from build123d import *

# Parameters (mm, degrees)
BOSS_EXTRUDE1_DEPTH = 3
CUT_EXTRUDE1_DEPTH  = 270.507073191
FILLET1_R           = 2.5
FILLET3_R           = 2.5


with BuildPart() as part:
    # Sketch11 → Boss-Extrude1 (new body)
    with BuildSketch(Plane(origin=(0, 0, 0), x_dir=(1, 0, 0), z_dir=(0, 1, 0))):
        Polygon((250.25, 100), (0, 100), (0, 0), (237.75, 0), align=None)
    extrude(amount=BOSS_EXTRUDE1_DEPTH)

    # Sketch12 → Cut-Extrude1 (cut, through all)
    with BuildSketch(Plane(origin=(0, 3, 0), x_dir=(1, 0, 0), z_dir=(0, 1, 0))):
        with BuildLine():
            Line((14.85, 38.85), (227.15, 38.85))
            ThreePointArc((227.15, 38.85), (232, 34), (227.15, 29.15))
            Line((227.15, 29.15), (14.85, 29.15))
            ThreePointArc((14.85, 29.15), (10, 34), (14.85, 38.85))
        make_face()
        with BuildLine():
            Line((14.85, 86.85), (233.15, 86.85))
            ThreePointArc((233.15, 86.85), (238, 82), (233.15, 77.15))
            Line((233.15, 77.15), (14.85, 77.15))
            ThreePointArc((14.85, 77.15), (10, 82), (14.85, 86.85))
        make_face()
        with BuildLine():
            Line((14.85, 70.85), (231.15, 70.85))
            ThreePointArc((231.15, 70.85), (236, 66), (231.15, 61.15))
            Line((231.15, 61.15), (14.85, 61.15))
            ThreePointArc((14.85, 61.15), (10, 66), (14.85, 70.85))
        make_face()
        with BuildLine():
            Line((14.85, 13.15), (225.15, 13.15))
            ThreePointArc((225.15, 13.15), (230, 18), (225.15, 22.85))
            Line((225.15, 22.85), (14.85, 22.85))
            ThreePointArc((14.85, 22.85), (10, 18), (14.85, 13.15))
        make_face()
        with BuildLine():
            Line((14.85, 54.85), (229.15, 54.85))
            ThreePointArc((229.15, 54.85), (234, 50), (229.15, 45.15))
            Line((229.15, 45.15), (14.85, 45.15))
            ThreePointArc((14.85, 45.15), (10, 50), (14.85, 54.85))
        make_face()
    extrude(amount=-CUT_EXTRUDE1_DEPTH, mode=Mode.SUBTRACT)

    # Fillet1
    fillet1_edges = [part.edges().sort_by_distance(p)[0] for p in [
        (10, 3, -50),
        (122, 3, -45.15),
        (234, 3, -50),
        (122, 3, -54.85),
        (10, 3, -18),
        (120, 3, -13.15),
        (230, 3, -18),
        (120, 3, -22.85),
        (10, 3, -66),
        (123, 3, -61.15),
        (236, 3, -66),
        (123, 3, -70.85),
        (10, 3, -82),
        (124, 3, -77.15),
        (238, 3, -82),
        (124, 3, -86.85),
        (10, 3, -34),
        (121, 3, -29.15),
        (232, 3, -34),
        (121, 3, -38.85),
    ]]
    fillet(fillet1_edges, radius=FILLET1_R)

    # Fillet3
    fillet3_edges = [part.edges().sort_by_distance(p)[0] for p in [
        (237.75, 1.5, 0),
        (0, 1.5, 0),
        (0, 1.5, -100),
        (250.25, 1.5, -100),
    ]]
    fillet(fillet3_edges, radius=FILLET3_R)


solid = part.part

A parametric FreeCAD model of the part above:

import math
import FreeCAD as App
import Part
import Sketcher

V = App.Vector


def edges_at(feature, points):
    """Names of the edges that pass closest to the given points."""
    edges = feature.Shape.Edges
    near = lambda p: min(range(len(edges)), key=lambda i: edges[i].distToShape(Part.Vertex(*p))[0])
    return sorted({f"Edge{near(p) + 1}" for p in points})


def add_polygon(sketch, points):
    """Adds a closed chain of lines whose ends are joined by coincident constraints."""
    first, n = sketch.GeometryCount, len(points)
    for a, b in zip(points, points[1:] + points[:1]):
        sketch.addGeometry(Part.LineSegment(App.Vector(*a, 0), App.Vector(*b, 0)), False)
    for i in range(n):
        sketch.addConstraint(Sketcher.Constraint("Coincident", first + i, 2, first + (i + 1) % n, 1))

doc = App.newDocument("Part")
body = doc.addObject("PartDesign::Body", "Body")

# Sketch on XZ plane
sketch1 = body.newObject("Sketcher::SketchObject", "Sketch")
sketch1.AttachmentSupport = (doc.getObject("XZ_Plane"), [""])
sketch1.MapMode = "FlatFace"
add_polygon(sketch1, [(250.25, -100), (0, -100), (0, 0), (237.75, 0)])  # lines 0-3
sketch1.addConstraint([
    Sketcher.Constraint("Horizontal", 0),
    Sketcher.Constraint("Vertical", 1),
    Sketcher.Constraint("Horizontal", 2),
    Sketcher.Constraint("Coincident", 1, 2, -1, 1),
    Sketcher.Constraint("DistanceY", 1, 1, 1, 2, 100.0),
    Sketcher.Constraint("DistanceX", 0, 2, 0, 1, 250.25),
    Sketcher.Constraint("DistanceX", 2, 1, 2, 2, 237.75),
])
pad1 = body.newObject("PartDesign::Pad", "Pad")
pad1.Profile = sketch1
pad1.Length = 3
pad1.Reversed = True

# Sketch on XZ plane
sketch2 = body.newObject("Sketcher::SketchObject", "Sketch001")
sketch2.AttachmentSupport = (doc.getObject("XZ_Plane"), [""])
sketch2.MapMode = "FlatFace"
sketch2.AttachmentOffset = App.Placement(V(0, 0, -3), App.Rotation())
sketch2.addGeometry([
    Part.LineSegment(V(227.15, -38.85, 0), V(14.85, -38.85, 0)),  # 0
    Part.ArcOfCircle(Part.Circle(V(14.85, -34, 0), V(0, 0, 1), 4.85), math.radians(90), math.radians(270)),  # 1
    Part.LineSegment(V(14.85, -29.15, 0), V(227.15, -29.15, 0)),  # 2
    Part.ArcOfCircle(Part.Circle(V(227.15, -34, 0), V(0, 0, 1), 4.85), math.radians(-90), math.radians(90)),  # 3
    Part.LineSegment(V(233.15, -86.85, 0), V(14.85, -86.85, 0)),  # 4
    Part.ArcOfCircle(Part.Circle(V(14.85, -82, 0), V(0, 0, 1), 4.85), math.radians(90), math.radians(270)),  # 5
    Part.LineSegment(V(14.85, -77.15, 0), V(233.15, -77.15, 0)),  # 6
    Part.ArcOfCircle(Part.Circle(V(233.15, -82, 0), V(0, 0, 1), 4.85), math.radians(-90), math.radians(90)),  # 7
    Part.LineSegment(V(231.15, -70.85, 0), V(14.85, -70.85, 0)),  # 8
    Part.ArcOfCircle(Part.Circle(V(14.85, -66, 0), V(0, 0, 1), 4.85), math.radians(90), math.radians(270)),  # 9
    Part.LineSegment(V(14.85, -61.15, 0), V(231.15, -61.15, 0)),  # 10
    Part.ArcOfCircle(Part.Circle(V(231.15, -66, 0), V(0, 0, 1), 4.85), math.radians(-90), math.radians(90)),  # 11
    Part.LineSegment(V(14.85, -13.15, 0), V(225.15, -13.15, 0)),  # 12
    Part.ArcOfCircle(Part.Circle(V(225.15, -18, 0), V(0, 0, 1), 4.85), math.radians(-90), math.radians(90)),  # 13
    Part.LineSegment(V(225.15, -22.85, 0), V(14.85, -22.85, 0)),  # 14
    Part.ArcOfCircle(Part.Circle(V(14.85, -18, 0), V(0, 0, 1), 4.85), math.radians(90), math.radians(270)),  # 15
    Part.LineSegment(V(229.15, -54.85, 0), V(14.85, -54.85, 0)),  # 16
    Part.ArcOfCircle(Part.Circle(V(14.85, -50, 0), V(0, 0, 1), 4.85), math.radians(90), math.radians(270)),  # 17
    Part.LineSegment(V(14.85, -45.15, 0), V(229.15, -45.15, 0)),  # 18
    Part.ArcOfCircle(Part.Circle(V(229.15, -50, 0), V(0, 0, 1), 4.85), math.radians(-90), math.radians(90)),  # 19
], False)
sketch2.addConstraint([
    Sketcher.Constraint("Tangent", 0, 2, 1, 2),
    Sketcher.Constraint("Tangent", 1, 1, 2, 1),
    Sketcher.Constraint("Tangent", 2, 2, 3, 2),
    Sketcher.Constraint("Tangent", 3, 1, 0, 1),
    Sketcher.Constraint("Tangent", 4, 2, 5, 2),
    Sketcher.Constraint("Tangent", 5, 1, 6, 1),
    Sketcher.Constraint("Tangent", 6, 2, 7, 2),
    Sketcher.Constraint("Tangent", 7, 1, 4, 1),
    Sketcher.Constraint("Tangent", 8, 2, 9, 2),
    Sketcher.Constraint("Tangent", 9, 1, 10, 1),
    Sketcher.Constraint("Tangent", 10, 2, 11, 2),
    Sketcher.Constraint("Tangent", 11, 1, 8, 1),
    Sketcher.Constraint("Tangent", 12, 2, 13, 2),
    Sketcher.Constraint("Tangent", 13, 1, 14, 1),
    Sketcher.Constraint("Tangent", 14, 2, 15, 2),
    Sketcher.Constraint("Tangent", 15, 1, 12, 1),
    Sketcher.Constraint("Tangent", 16, 2, 17, 2),
    Sketcher.Constraint("Tangent", 17, 1, 18, 1),
    Sketcher.Constraint("Tangent", 18, 2, 19, 2),
    Sketcher.Constraint("Tangent", 19, 1, 16, 1),
    Sketcher.Constraint("Horizontal", 0),
    Sketcher.Constraint("Horizontal", 2),
    Sketcher.Constraint("Horizontal", 4),
    Sketcher.Constraint("Horizontal", 6),
    Sketcher.Constraint("Horizontal", 8),
    Sketcher.Constraint("Horizontal", 10),
    Sketcher.Constraint("Horizontal", 12),
    Sketcher.Constraint("Horizontal", 14),
    Sketcher.Constraint("Horizontal", 16),
    Sketcher.Constraint("Horizontal", 18),
    Sketcher.Constraint("Equal", 3, 5),
    Sketcher.Constraint("Equal", 7, 9),
    Sketcher.Constraint("Equal", 11, 13),
    Sketcher.Constraint("Equal", 15, 17),
    Sketcher.Constraint("Vertical", 1, 3, 5, 3),
    Sketcher.Constraint("Vertical", 5, 3, 9, 3),
    Sketcher.Constraint("Vertical", 9, 3, 15, 3),
    Sketcher.Constraint("Vertical", 15, 3, 17, 3),
    Sketcher.Constraint("Radius", 1, 4.85),
    Sketcher.Constraint("DistanceX", 0, 2, 0, 1, 212.3),
    Sketcher.Constraint("DistanceX", 4, 2, 4, 1, 218.3),
    Sketcher.Constraint("DistanceX", 8, 2, 8, 1, 216.3),
    Sketcher.Constraint("DistanceX", 12, 1, 12, 2, 210.3),
    Sketcher.Constraint("DistanceX", 16, 2, 16, 1, 214.3),
    Sketcher.Constraint("DistanceY", 1, 3, -1, 1, 34.0),
    Sketcher.Constraint("DistanceY", 5, 3, -1, 1, 82.0),
    Sketcher.Constraint("DistanceY", 9, 3, -1, 1, 66.0),
    Sketcher.Constraint("DistanceY", 13, 3, -1, 1, 18.0),
    Sketcher.Constraint("DistanceY", 17, 3, -1, 1, 50.0),
    Sketcher.Constraint("DistanceX", -1, 1, 1, 3, 14.85),
])
pocket1 = body.newObject("PartDesign::Pocket", "Pocket")
pocket1.Profile = sketch2
pocket1.Type = "ThroughAll"
pocket1.Reversed = True
doc.recompute()

fillet = body.newObject("PartDesign::Fillet", "Fillet")
fillet.Base = (pocket1, edges_at(pocket1, [
    (10, 3, -50),
    (122, 3, -45.15),
    (234, 3, -50),
    (122, 3, -54.85),
    (10, 3, -18),
    (120, 3, -13.15),
    (230, 3, -18),
    (120, 3, -22.85),
    (10, 3, -66),
    (123, 3, -61.15),
    (236, 3, -66),
    (123, 3, -70.85),
    (10, 3, -82),
    (124, 3, -77.15),
    (238, 3, -82),
    (124, 3, -86.85),
    (10, 3, -34),
    (121, 3, -29.15),
    (232, 3, -34),
    (121, 3, -38.85),
]))
fillet.Radius = 2.5
doc.recompute()

fillet2 = body.newObject("PartDesign::Fillet", "Fillet001")
fillet2.Base = (fillet, edges_at(fillet, [
    (237.75, 1.5, 0),
    (0, 1.5, 0),
    (0, 1.5, -100),
    (250.25, 1.5, -100),
]))
fillet2.Radius = 2.5

doc.recompute()
